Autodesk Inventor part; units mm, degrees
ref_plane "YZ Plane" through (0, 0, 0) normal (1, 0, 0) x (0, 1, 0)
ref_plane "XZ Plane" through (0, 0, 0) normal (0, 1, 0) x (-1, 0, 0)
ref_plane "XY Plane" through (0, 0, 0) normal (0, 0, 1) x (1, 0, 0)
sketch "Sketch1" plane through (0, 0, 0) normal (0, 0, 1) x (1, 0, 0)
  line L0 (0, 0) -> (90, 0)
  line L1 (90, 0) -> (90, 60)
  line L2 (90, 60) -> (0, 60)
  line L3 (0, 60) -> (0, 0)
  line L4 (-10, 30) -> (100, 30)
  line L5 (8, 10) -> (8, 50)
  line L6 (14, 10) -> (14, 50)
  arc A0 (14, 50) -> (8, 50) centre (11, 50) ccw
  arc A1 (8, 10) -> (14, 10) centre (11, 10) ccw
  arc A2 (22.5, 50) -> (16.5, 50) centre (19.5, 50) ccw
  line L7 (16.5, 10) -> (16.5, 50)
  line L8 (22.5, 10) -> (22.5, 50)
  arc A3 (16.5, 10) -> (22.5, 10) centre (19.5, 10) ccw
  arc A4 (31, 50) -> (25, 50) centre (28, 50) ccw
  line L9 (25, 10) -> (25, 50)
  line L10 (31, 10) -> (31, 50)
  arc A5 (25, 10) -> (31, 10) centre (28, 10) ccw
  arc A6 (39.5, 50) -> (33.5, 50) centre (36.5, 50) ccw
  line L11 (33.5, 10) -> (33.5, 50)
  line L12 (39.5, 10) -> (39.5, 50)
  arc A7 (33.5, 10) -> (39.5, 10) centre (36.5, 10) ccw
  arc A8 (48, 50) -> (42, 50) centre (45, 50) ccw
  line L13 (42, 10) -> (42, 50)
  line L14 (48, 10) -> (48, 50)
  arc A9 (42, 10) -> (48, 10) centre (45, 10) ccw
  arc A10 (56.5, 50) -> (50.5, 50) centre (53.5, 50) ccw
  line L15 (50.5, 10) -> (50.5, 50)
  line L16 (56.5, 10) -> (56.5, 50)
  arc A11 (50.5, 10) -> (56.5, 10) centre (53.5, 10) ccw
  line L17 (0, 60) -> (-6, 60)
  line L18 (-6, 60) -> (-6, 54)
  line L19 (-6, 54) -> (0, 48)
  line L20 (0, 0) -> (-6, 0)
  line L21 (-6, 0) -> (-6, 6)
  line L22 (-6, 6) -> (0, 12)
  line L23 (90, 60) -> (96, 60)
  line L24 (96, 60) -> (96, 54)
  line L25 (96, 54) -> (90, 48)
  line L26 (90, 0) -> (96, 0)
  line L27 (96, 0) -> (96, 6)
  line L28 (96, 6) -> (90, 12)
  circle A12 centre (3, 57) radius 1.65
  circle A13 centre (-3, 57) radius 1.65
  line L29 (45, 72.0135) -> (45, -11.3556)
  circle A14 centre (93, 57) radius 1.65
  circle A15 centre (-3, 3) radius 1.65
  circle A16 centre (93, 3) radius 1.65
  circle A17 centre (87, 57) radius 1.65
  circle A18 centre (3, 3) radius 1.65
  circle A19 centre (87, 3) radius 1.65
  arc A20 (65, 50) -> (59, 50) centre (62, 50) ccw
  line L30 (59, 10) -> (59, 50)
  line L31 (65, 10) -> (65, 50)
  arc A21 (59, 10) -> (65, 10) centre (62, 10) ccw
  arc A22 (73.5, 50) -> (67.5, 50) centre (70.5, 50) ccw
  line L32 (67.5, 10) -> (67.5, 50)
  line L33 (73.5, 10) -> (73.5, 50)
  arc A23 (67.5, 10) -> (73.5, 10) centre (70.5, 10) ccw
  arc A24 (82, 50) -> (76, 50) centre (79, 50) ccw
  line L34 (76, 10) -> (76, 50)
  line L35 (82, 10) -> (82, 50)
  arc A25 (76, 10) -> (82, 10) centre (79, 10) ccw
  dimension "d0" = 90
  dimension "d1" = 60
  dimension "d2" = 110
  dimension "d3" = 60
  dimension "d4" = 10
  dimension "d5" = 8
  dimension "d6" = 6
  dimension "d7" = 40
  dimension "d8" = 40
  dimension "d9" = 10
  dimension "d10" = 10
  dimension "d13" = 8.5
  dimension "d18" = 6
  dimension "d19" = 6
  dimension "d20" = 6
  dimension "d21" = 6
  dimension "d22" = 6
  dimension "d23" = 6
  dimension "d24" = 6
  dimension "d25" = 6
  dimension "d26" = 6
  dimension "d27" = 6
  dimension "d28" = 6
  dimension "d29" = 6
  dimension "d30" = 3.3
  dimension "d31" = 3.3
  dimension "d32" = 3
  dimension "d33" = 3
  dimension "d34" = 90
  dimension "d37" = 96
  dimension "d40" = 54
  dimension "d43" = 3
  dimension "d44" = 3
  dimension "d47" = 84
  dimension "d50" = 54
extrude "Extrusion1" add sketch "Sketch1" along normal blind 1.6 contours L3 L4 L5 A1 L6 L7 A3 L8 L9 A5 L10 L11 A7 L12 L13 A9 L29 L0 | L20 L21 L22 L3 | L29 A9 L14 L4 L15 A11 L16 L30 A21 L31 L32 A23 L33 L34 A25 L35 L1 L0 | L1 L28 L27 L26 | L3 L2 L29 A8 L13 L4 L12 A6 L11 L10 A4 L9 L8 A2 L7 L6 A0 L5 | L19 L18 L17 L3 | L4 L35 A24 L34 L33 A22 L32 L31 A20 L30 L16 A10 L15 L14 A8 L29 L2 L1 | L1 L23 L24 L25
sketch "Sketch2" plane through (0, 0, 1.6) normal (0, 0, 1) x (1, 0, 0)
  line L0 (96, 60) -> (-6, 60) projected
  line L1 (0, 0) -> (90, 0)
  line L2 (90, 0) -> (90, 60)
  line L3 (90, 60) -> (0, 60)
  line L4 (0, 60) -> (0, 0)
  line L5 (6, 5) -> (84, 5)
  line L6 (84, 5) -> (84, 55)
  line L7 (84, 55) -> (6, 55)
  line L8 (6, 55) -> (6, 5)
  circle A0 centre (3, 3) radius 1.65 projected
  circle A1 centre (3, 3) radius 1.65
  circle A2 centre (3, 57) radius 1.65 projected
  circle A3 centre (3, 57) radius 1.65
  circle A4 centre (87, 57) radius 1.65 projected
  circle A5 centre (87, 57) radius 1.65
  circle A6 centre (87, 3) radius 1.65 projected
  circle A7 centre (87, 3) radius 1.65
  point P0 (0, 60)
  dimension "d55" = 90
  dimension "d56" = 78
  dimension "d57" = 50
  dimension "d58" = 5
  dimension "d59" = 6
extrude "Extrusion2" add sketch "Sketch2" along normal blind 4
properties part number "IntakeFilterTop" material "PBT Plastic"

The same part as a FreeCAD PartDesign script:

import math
import FreeCAD as App
import Part
import Sketcher


def add_polygon(sketch, points):
    """Adds a closed chain of lines whose ends are joined by coincident constraints."""
    first, n = sketch.GeometryCount, len(points)
    for a, b in zip(points, points[1:] + points[:1]):
        sketch.addGeometry(Part.LineSegment(App.Vector(*a, 0), App.Vector(*b, 0)), False)
    for i in range(n):
        sketch.addConstraint(Sketcher.Constraint("Coincident", first + i, 2, first + (i + 1) % n, 1))

doc = App.newDocument("Part")
params = doc.addObject("Spreadsheet::Sheet", "Params")
for row, (alias, value) in enumerate([
    ("sketch1_radius", "3 mm"),
    ("sketch1_diameter", "3.3 mm"),
    ("sketch1_height", "6 mm"),
    ("sketch1_height2", "40 mm"),
    ("pad1_length", "1.6 mm"),
    ("sketch2_width", "90 mm"),
    ("sketch2_width2", "78 mm"),
    ("sketch2_height", "50 mm"),
    ("sketch2_diameter", "3.3 mm"),
    ("pad2_length", "4 mm"),
], start=1):
    params.set(f"A{row}", alias)
    params.set(f"B{row}", "=" + value)
    params.setAlias(f"B{row}", alias)

body = doc.addObject("PartDesign::Body", "Body")

sketch1 = body.newObject("Sketcher::SketchObject", "Sketch")
sketch1.AttachmentSupport = (doc.getObject("XY_Plane"), [""])
sketch1.MapMode = "FlatFace"
add_polygon(sketch1, [(0, 12), (-6, 6), (-6, 0), (96, 0), (96, 6), (90, 12), (90, 48), (96, 54), (96, 60), (-6, 60), (-6, 54), (0, 48)])
sketch1.addGeometry(Part.LineSegment(App.Vector(8, 10, 0), App.Vector(8, 50, 0)), False)
sketch1.addGeometry(Part.ArcOfCircle(Part.Circle(App.Vector(11, 50, 0), App.Vector(0, 0, 1), 3), math.radians(0), math.radians(180)), False)
sketch1.addGeometry(Part.LineSegment(App.Vector(14, 50, 0), App.Vector(14, 10, 0)), False)
sketch1.addGeometry(Part.ArcOfCircle(Part.Circle(App.Vector(11, 10, 0), App.Vector(0, 0, 1), 3), math.radians(180), math.radians(360)), False)
sketch1.addGeometry(Part.LineSegment(App.Vector(16.5, 10, 0), App.Vector(16.5, 50, 0)), False)
sketch1.addGeometry(Part.ArcOfCircle(Part.Circle(App.Vector(19.5, 50, 0), App.Vector(0, 0, 1), 3), math.radians(0), math.radians(180)), False)
sketch1.addGeometry(Part.LineSegment(App.Vector(22.5, 50, 0), App.Vector(22.5, 10, 0)), False)
sketch1.addGeometry(Part.ArcOfCircle(Part.Circle(App.Vector(19.5, 10, 0), App.Vector(0, 0, 1), 3), math.radians(180), math.radians(360)), False)
sketch1.addGeometry(Part.LineSegment(App.Vector(25, 10, 0), App.Vector(25, 50, 0)), False)
sketch1.addGeometry(Part.ArcOfCircle(Part.Circle(App.Vector(28, 50, 0), App.Vector(0, 0, 1), 3), math.radians(0), math.radians(180)), False)
sketch1.addGeometry(Part.LineSegment(App.Vector(31, 50, 0), App.Vector(31, 10, 0)), False)
sketch1.addGeometry(Part.ArcOfCircle(Part.Circle(App.Vector(28, 10, 0), App.Vector(0, 0, 1), 3), math.radians(180), math.radians(360)), False)
sketch1.addGeometry(Part.LineSegment(App.Vector(33.5, 10, 0), App.Vector(33.5, 50, 0)), False)
sketch1.addGeometry(Part.ArcOfCircle(Part.Circle(App.Vector(36.5, 50, 0), App.Vector(0, 0, 1), 3), math.radians(0), math.radians(180)), False)
sketch1.addGeometry(Part.LineSegment(App.Vector(39.5, 50, 0), App.Vector(39.5, 10, 0)), False)
sketch1.addGeometry(Part.ArcOfCircle(Part.Circle(App.Vector(36.5, 10, 0), App.Vector(0, 0, 1), 3), math.radians(180), math.radians(360)), False)
sketch1.addGeometry(Part.LineSegment(App.Vector(42, 10, 0), App.Vector(42, 50, 0)), False)
sketch1.addGeometry(Part.ArcOfCircle(Part.Circle(App.Vector(45, 50, 0), App.Vector(0, 0, 1), 3), math.radians(0), math.radians(180)), False)
sketch1.addGeometry(Part.LineSegment(App.Vector(48, 50, 0), App.Vector(48, 10, 0)), False)
sketch1.addGeometry(Part.ArcOfCircle(Part.Circle(App.Vector(45, 10, 0), App.Vector(0, 0, 1), 3), math.radians(180), math.radians(360)), False)
sketch1.addGeometry(Part.Circle(App.Vector(3, 3, 0), App.Vector(0, 0, 1), 1.6), False)
sketch1.addGeometry(Part.Circle(App.Vector(-3, 3, 0), App.Vector(0, 0, 1), 1.6), False)
sketch1.addGeometry(Part.Circle(App.Vector(3, 57, 0), App.Vector(0, 0, 1), 1.6), False)
sketch1.addGeometry(Part.Circle(App.Vector(87, 3, 0), App.Vector(0, 0, 1), 1.6), False)
sketch1.addGeometry(Part.LineSegment(App.Vector(50.5, 10, 0), App.Vector(50.5, 50, 0)), False)
sketch1.addGeometry(Part.ArcOfCircle(Part.Circle(App.Vector(53.5, 50, 0), App.Vector(0, 0, 1), 3), math.radians(0), math.radians(180)), False)
sketch1.addGeometry(Part.LineSegment(App.Vector(56.5, 50, 0), App.Vector(56.5, 10, 0)), False)
sketch1.addGeometry(Part.ArcOfCircle(Part.Circle(App.Vector(53.5, 10, 0), App.Vector(0, 0, 1), 3), math.radians(180), math.radians(360)), False)
sketch1.addGeometry(Part.LineSegment(App.Vector(59, 10, 0), App.Vector(59, 50, 0)), False)
sketch1.addGeometry(Part.ArcOfCircle(Part.Circle(App.Vector(62, 50, 0), App.Vector(0, 0, 1), 3), math.radians(0), math.radians(180)), False)
sketch1.addGeometry(Part.LineSegment(App.Vector(65, 50, 0), App.Vector(65, 10, 0)), False)
sketch1.addGeometry(Part.ArcOfCircle(Part.Circle(App.Vector(62, 10, 0), App.Vector(0, 0, 1), 3), math.radians(180), math.radians(360)), False)
sketch1.addGeometry(Part.LineSegment(App.Vector(67.5, 10, 0), App.Vector(67.5, 50, 0)), False)
sketch1.addGeometry(Part.ArcOfCircle(Part.Circle(App.Vector(70.5, 50, 0), App.Vector(0, 0, 1), 3), math.radians(0), math.radians(180)), False)
sketch1.addGeometry(Part.LineSegment(App.Vector(73.5, 50, 0), App.Vector(73.5, 10, 0)), False)
sketch1.addGeometry(Part.ArcOfCircle(Part.Circle(App.Vector(70.5, 10, 0), App.Vector(0, 0, 1), 3), math.radians(180), math.radians(360)), False)
sketch1.addGeometry(Part.LineSegment(App.Vector(76, 10, 0), App.Vector(76, 50, 0)), False)
sketch1.addGeometry(Part.ArcOfCircle(Part.Circle(App.Vector(79, 50, 0), App.Vector(0, 0, 1), 3), math.radians(0), math.radians(180)), False)
sketch1.addGeometry(Part.LineSegment(App.Vector(82, 50, 0), App.Vector(82, 10, 0)), False)
sketch1.addGeometry(Part.ArcOfCircle(Part.Circle(App.Vector(79, 10, 0), App.Vector(0, 0, 1), 3), math.radians(180), math.radians(360)), False)
sketch1.addGeometry(Part.Circle(App.Vector(-3, 57, 0), App.Vector(0, 0, 1), 1.6), False)
sketch1.addGeometry(Part.Circle(App.Vector(87, 57, 0), App.Vector(0, 0, 1), 1.6), False)
sketch1.addGeometry(Part.Circle(App.Vector(93, 3, 0), App.Vector(0, 0, 1), 1.6), False)
sketch1.addGeometry(Part.Circle(App.Vector(93, 57, 0), App.Vector(0, 0, 1), 1.6), False)
sketch1.addConstraint([
    Sketcher.Constraint("Tangent", 12, 2, 13, 2),
    Sketcher.Constraint("Tangent", 13, 1, 14, 1),
    Sketcher.Constraint("Tangent", 14, 2, 15, 2),
    Sketcher.Constraint("Tangent", 15, 1, 12, 1),
    Sketcher.Constraint("Tangent", 16, 2, 17, 2),
    Sketcher.Constraint("Tangent", 17, 1, 18, 1),
    Sketcher.Constraint("Tangent", 18, 2, 19, 2),
    Sketcher.Constraint("Tangent", 19, 1, 16, 1),
    Sketcher.Constraint("Tangent", 20, 2, 21, 2),
    Sketcher.Constraint("Tangent", 21, 1, 22, 1),
    Sketcher.Constraint("Tangent", 22, 2, 23, 2),
    Sketcher.Constraint("Tangent", 23, 1, 20, 1),
    Sketcher.Constraint("Tangent", 24, 2, 25, 2),
    Sketcher.Constraint("Tangent", 25, 1, 26, 1),
    Sketcher.Constraint("Tangent", 26, 2, 27, 2),
    Sketcher.Constraint("Tangent", 27, 1, 24, 1),
    Sketcher.Constraint("Tangent", 28, 2, 29, 2),
    Sketcher.Constraint("Tangent", 29, 1, 30, 1),
    Sketcher.Constraint("Tangent", 30, 2, 31, 2),
    Sketcher.Constraint("Tangent", 31, 1, 28, 1),
    Sketcher.Constraint("Tangent", 36, 2, 37, 2),
    Sketcher.Constraint("Tangent", 37, 1, 38, 1),
    Sketcher.Constraint("Tangent", 38, 2, 39, 2),
    Sketcher.Constraint("Tangent", 39, 1, 36, 1),
    Sketcher.Constraint("Tangent", 40, 2, 41, 2),
    Sketcher.Constraint("Tangent", 41, 1, 42, 1),
    Sketcher.Constraint("Tangent", 42, 2, 43, 2),
    Sketcher.Constraint("Tangent", 43, 1, 40, 1),
    Sketcher.Constraint("Tangent", 44, 2, 45, 2),
    Sketcher.Constraint("Tangent", 45, 1, 46, 1),
    Sketcher.Constraint("Tangent", 46, 2, 47, 2),
    Sketcher.Constraint("Tangent", 47, 1, 44, 1),
    Sketcher.Constraint("Tangent", 48, 2, 49, 2),
    Sketcher.Constraint("Tangent", 49, 1, 50, 1),
    Sketcher.Constraint("Tangent", 50, 2, 51, 2),
    Sketcher.Constraint("Tangent", 51, 1, 48, 1),
    Sketcher.Constraint("Vertical", 1),
    Sketcher.Constraint("Horizontal", 2),
    Sketcher.Constraint("Vertical", 3),
    Sketcher.Constraint("Vertical", 5),
    Sketcher.Constraint("Vertical", 7),
    Sketcher.Constraint("Horizontal", 8),
    Sketcher.Constraint("Vertical", 9),
    Sketcher.Constraint("Vertical", 11),
    Sketcher.Constraint("Vertical", 12),
    Sketcher.Constraint("Vertical", 14),
    Sketcher.Constraint("Vertical", 16),
    Sketcher.Constraint("Vertical", 18),
    Sketcher.Constraint("Vertical", 20),
    Sketcher.Constraint("Vertical", 22),
    Sketcher.Constraint("Vertical", 24),
    Sketcher.Constraint("Vertical", 26),
    Sketcher.Constraint("Vertical", 28),
    Sketcher.Constraint("Vertical", 30),
    Sketcher.Constraint("Vertical", 36),
    Sketcher.Constraint("Vertical", 38),
    Sketcher.Constraint("Vertical", 40),
    Sketcher.Constraint("Vertical", 42),
    Sketcher.Constraint("Vertical", 44),
    Sketcher.Constraint("Vertical", 46),
    Sketcher.Constraint("Vertical", 48),
    Sketcher.Constraint("Vertical", 50),
    Sketcher.Constraint("Equal", 15, 17),
    Sketcher.Constraint("Equal", 19, 21),
    Sketcher.Constraint("Equal", 23, 25),
    Sketcher.Constraint("Equal", 27, 29),
    Sketcher.Constraint("Equal", 32, 33),
    Sketcher.Constraint("Equal", 33, 34),
    Sketcher.Constraint("Equal", 34, 35),
    Sketcher.Constraint("Equal", 31, 37),
    Sketcher.Constraint("Equal", 39, 41),
    Sketcher.Constraint("Equal", 43, 45),
    Sketcher.Constraint("Equal", 47, 49),
    Sketcher.Constraint("Equal", 35, 52),
    Sketcher.Constraint("Equal", 52, 53),
    Sketcher.Constraint("Equal", 53, 54),
    Sketcher.Constraint("Equal", 54, 55),
    Sketcher.Constraint("Symmetric", 32, 3, 33, 3, -2),
    Sketcher.Constraint("Symmetric", 34, 3, 52, 3, -2),
    Sketcher.Constraint("PointOnObject", 1, 2, -1),
    Sketcher.Constraint("PointOnObject", 10, 2, -2),
    Sketcher.Constraint("Perpendicular", 0, 4),
    Sketcher.Constraint("Perpendicular", 4, 6),
    Sketcher.Constraint("Perpendicular", 6, 10),
    Sketcher.Constraint("Horizontal", 13, 3, 17, 3),
    Sketcher.Constraint("Horizontal", 15, 3, 19, 3),
    Sketcher.Constraint("Horizontal", 17, 3, 21, 3),
    Sketcher.Constraint("Horizontal", 19, 3, 23, 3),
    Sketcher.Constraint("Horizontal", 21, 3, 25, 3),
    Sketcher.Constraint("Horizontal", 23, 3, 27, 3),
    Sketcher.Constraint("Horizontal", 25, 3, 29, 3),
    Sketcher.Constraint("Horizontal", 27, 3, 31, 3),
    Sketcher.Constraint("Horizontal", 33, 3, 35, 3),
    Sketcher.Constraint("Horizontal", 29, 3, 37, 3),
    Sketcher.Constraint("Horizontal", 31, 3, 39, 3),
    Sketcher.Constraint("Horizontal", 37, 3, 41, 3),
    Sketcher.Constraint("Horizontal", 39, 3, 43, 3),
    Sketcher.Constraint("Horizontal", 41, 3, 45, 3),
    Sketcher.Constraint("Horizontal", 43, 3, 47, 3),
    Sketcher.Constraint("Horizontal", 45, 3, 49, 3),
    Sketcher.Constraint("Horizontal", 47, 3, 51, 3),
    Sketcher.Constraint("Horizontal", 52, 3, 53, 3),
    Sketcher.Constraint("Horizontal", 35, 3, 54, 3),
    Sketcher.Constraint("Horizontal", 53, 3, 55, 3),
    Sketcher.Constraint("Horizontal", 0, 2, 3, 2),
    Sketcher.Constraint("Horizontal", 6, 2, 9, 2),
    Sketcher.Constraint("Horizontal", 5, 2, 10, 2),
    Sketcher.Constraint("Horizontal", 4, 2, 11, 2),
    Sketcher.Constraint("Vertical", 32, 3, 34, 3),
    Sketcher.Constraint("Vertical", 35, 3, 53, 3),
    Sketcher.Constraint("Vertical", 54, 3, 55, 3),
    Sketcher.Constraint("Vertical", 3, 2, 6, 2),
    Sketcher.Constraint("Vertical", 1, 2, 8, 2),
    Sketcher.Constraint("Equal", 3, 7),
    Sketcher.Constraint("Radius", 13, 3.0),
    Sketcher.Constraint("Diameter", 32, 3.3),
    Sketcher.Constraint("DistanceY", 1, 2, 1, 1, 6.0),
    Sketcher.Constraint("DistanceY", 12, 1, 12, 2, 40.0),
    Sketcher.Constraint("DistanceY", -1, 1, 15, 3, 10.0),
    Sketcher.Constraint("DistanceX", -1, 1, 32, 3, 3.0),
    Sketcher.Constraint("DistanceY", -1, 1, 32, 3, 3.0),
    Sketcher.Constraint("DistanceX", 0, 2, -1, 1, 6.0),
    Sketcher.Constraint("DistanceX", -1, 1, 2, 2, 96.0),
    Sketcher.Constraint("DistanceY", -1, 1, 6, 2, 54.0),
    Sketcher.Constraint("DistanceX", -1, 1, 12, 2, 8.0),
    Sketcher.Constraint("DistanceX", -1, 1, 21, 3, 28.0),
    Sketcher.Constraint("DistanceX", -1, 1, 29, 3, 45.0),
    Sketcher.Constraint("DistanceY", -1, 1, 34, 3, 57.0),
    Sketcher.Constraint("DistanceX", -1, 1, 35, 3, 87.0),
    Sketcher.Constraint("DistanceX", -1, 1, 41, 3, 62.0),
    Sketcher.Constraint("DistanceX", -1, 1, 49, 3, 79.0),
    Sketcher.Constraint("DistanceX", -1, 1, 54, 3, 93.0),
    Sketcher.Constraint("DistanceX", -1, 1, 17, 3, 19.5),
    Sketcher.Constraint("DistanceX", -1, 1, 25, 3, 36.5),
    Sketcher.Constraint("DistanceX", -1, 1, 37, 3, 53.5),
    Sketcher.Constraint("DistanceX", -1, 1, 45, 3, 70.5),
])
sketch1.setExpression("Constraints[126]", "Params.sketch1_radius")
sketch1.setExpression("Constraints[127]", "Params.sketch1_diameter")
sketch1.setExpression("Constraints[128]", "Params.sketch1_height")
sketch1.setExpression("Constraints[129]", "Params.sketch1_height2")
pad1 = body.newObject("PartDesign::Pad", "Pad")
pad1.Profile = sketch1
pad1.setExpression("Length", "Params.pad1_length")

sketch2 = body.newObject("Sketcher::SketchObject", "Sketch001")
sketch2.AttachmentSupport = (doc.getObject("XY_Plane"), [""])
sketch2.MapMode = "FlatFace"
sketch2.AttachmentOffset = App.Placement(App.Vector(0, 0, 1.6), App.Rotation())
add_polygon(sketch2, [(90, 0), (90, 60), (0, 60), (0, 0)])
sketch2.addGeometry(Part.Circle(App.Vector(3, 3, 0), App.Vector(0, 0, 1), 1.6), False)
sketch2.addGeometry(Part.Circle(App.Vector(87, 3, 0), App.Vector(0, 0, 1), 1.6), False)
sketch2.addGeometry(Part.Circle(App.Vector(3, 57, 0), App.Vector(0, 0, 1), 1.6), False)
add_polygon(sketch2, [(84, 5), (6, 5), (6, 55), (84, 55)])
sketch2.addGeometry(Part.Circle(App.Vector(87, 57, 0), App.Vector(0, 0, 1), 1.6), False)
sketch2.addConstraint([
    Sketcher.Constraint("Vertical", 0),
    Sketcher.Constraint("Horizontal", 1),
    Sketcher.Constraint("Vertical", 2),
    Sketcher.Constraint("Horizontal", 3),
    Sketcher.Constraint("Horizontal", 7),
    Sketcher.Constraint("Vertical", 8),
    Sketcher.Constraint("Horizontal", 9),
    Sketcher.Constraint("Vertical", 10),
    Sketcher.Constraint("Coincident", 2, 2, -1, 1),
    Sketcher.Constraint("Equal", 4, 5),
    Sketcher.Constraint("Equal", 5, 6),
    Sketcher.Constraint("Equal", 6, 11),
    Sketcher.Constraint("Horizontal", 4, 3, 5, 3),
    Sketcher.Constraint("Horizontal", 6, 3, 11, 3),
    Sketcher.Constraint("Vertical", 4, 3, 6, 3),
    Sketcher.Constraint("Vertical", 5, 3, 11, 3),
    Sketcher.Constraint("DistanceX", 1, 2, 1, 1, 90.0),
    Sketcher.Constraint("DistanceX", 7, 2, 7, 1, 78.0),
    Sketcher.Constraint("DistanceY", 8, 1, 8, 2, 50.0),
    Sketcher.Constraint("DistanceX", -1, 1, 7, 2, 6.0),
    Sketcher.Constraint("DistanceY", -1, 1, 7, 2, 5.0),
    Sketcher.Constraint("DistanceY", 8, 2, 1, 2, 5.0),
    Sketcher.Constraint("Diameter", 4, 3.3),
    Sketcher.Constraint("DistanceX", -1, 1, 4, 3, 3.0),
    Sketcher.Constraint("DistanceY", -1, 1, 4, 3, 3.0),
    Sketcher.Constraint("DistanceX", -1, 1, 5, 3, 87.0),
    Sketcher.Constraint("DistanceY", -1, 1, 6, 3, 57.0),
])
sketch2.setExpression("Constraints[24]", "Params.sketch2_width")
sketch2.setExpression("Constraints[25]", "Params.sketch2_width2")
sketch2.setExpression("Constraints[26]", "Params.sketch2_height")
sketch2.setExpression("Constraints[30]", "Params.sketch2_diameter")
pad2 = body.newObject("PartDesign::Pad", "Pad001")
pad2.Profile = sketch2
pad2.setExpression("Length", "Params.pad2_length")

doc.recompute()
